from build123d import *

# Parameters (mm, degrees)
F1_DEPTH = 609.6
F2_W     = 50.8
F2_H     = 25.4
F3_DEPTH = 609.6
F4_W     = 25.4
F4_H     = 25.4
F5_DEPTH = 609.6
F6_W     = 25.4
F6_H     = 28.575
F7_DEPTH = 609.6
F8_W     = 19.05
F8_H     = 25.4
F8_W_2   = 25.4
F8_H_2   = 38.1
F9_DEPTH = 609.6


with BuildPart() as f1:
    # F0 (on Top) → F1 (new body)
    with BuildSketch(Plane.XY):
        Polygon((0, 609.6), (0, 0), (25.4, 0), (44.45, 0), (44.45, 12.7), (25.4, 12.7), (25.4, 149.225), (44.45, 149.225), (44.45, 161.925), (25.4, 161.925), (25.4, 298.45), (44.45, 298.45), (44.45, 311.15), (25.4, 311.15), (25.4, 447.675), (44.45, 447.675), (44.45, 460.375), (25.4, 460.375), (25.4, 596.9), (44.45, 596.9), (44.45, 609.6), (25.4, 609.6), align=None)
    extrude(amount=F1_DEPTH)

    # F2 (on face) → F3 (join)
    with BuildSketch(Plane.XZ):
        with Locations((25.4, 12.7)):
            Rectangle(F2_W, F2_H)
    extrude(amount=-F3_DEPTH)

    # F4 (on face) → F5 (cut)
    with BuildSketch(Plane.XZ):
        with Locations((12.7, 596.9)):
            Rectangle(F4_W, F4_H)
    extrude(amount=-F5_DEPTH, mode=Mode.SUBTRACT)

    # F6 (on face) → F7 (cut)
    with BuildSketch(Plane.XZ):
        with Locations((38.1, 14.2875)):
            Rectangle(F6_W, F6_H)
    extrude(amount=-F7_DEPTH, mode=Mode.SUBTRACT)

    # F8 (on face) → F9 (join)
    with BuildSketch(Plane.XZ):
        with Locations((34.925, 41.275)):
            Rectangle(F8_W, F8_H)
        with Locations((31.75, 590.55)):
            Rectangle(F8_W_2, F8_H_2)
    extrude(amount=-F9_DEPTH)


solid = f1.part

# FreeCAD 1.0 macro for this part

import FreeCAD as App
import Part
import Sketcher

V = App.Vector
Q = App.Units.Quantity

doc = App.newDocument("Part")
params = doc.addObject("Spreadsheet::Sheet", "Params")
for row, (alias, value) in enumerate([
    ("sketch1_height", "24 in"),
    ("sketch1_height2", "0.5 in"),
    ("sketch1_width", "1.75 in"),
    ("pad1_length", "24 in"),
    ("sketch2_width", "2 in"),
    ("sketch2_height", "1 in"),
    ("pad2_length", "24 in"),
    ("sketch3_width", "1 in"),
    ("pocket1_length", "24 in"),
    ("sketch4_width", "1 in"),
    ("sketch4_height", "1.125 in"),
    ("pocket2_length", "24 in"),
    ("sketch5_width", "1 in"),
    ("sketch5_height", "1.5 in"),
    ("sketch5_width2", "0.75 in"),
    ("pad3_length", "24 in"),
], start=1):
    params.set(f"A{row}", alias)
    params.set(f"B{row}", "=" + value)
    params.setAlias(f"B{row}", alias)

body = doc.addObject("PartDesign::Body", "Body")

sketch1 = body.newObject("Sketcher::SketchObject", "Sketch")
sketch1.AttachmentSupport = (doc.getObject("XY_Plane"), [""])
sketch1.MapMode = "FlatFace"
sketch1.addGeometry([
    Part.LineSegment(V(0, 609.6, 0), V(0, 0, 0)),
    Part.LineSegment(V(0, 0, 0), V(44.45, 0, 0)),
    Part.LineSegment(V(44.45, 0, 0), V(44.45, 12.7, 0)),
    Part.LineSegment(V(44.45, 12.7, 0), V(25.4, 12.7, 0)),
    Part.LineSegment(V(25.4, 12.7, 0), V(25.4, 149.225, 0)),
    Part.LineSegment(V(25.4, 149.225, 0), V(44.45, 149.225, 0)),
    Part.LineSegment(V(44.45, 149.225, 0), V(44.45, 161.925, 0)),
    Part.LineSegment(V(44.45, 161.925, 0), V(25.4, 161.925, 0)),
    Part.LineSegment(V(25.4, 161.925, 0), V(25.4, 298.45, 0)),
    Part.LineSegment(V(25.4, 298.45, 0), V(44.45, 298.45, 0)),
    Part.LineSegment(V(44.45, 298.45, 0), V(44.45, 311.15, 0)),
    Part.LineSegment(V(44.45, 311.15, 0), V(25.4, 311.15, 0)),
    Part.LineSegment(V(25.4, 311.15, 0), V(25.4, 447.675, 0)),
    Part.LineSegment(V(25.4, 447.675, 0), V(44.45, 447.675, 0)),
    Part.LineSegment(V(44.45, 447.675, 0), V(44.45, 460.375, 0)),
    Part.LineSegment(V(44.45, 460.375, 0), V(25.4, 460.375, 0)),
    Part.LineSegment(V(25.4, 460.375, 0), V(25.4, 596.9, 0)),
    Part.LineSegment(V(25.4, 596.9, 0), V(44.45, 596.9, 0)),
    Part.LineSegment(V(44.45, 596.9, 0), V(44.45, 609.6, 0)),
    Part.LineSegment(V(44.45, 609.6, 0), V(0, 609.6, 0)),
], False)
sketch1.addConstraint([
    Sketcher.Constraint("Coincident", 0, 2, 1, 1),
    Sketcher.Constraint("Coincident", 1, 2, 2, 1),
    Sketcher.Constraint("Coincident", 2, 2, 3, 1),
    Sketcher.Constraint("Coincident", 3, 2, 4, 1),
    Sketcher.Constraint("Coincident", 4, 2, 5, 1),
    Sketcher.Constraint("Coincident", 5, 2, 6, 1),
    Sketcher.Constraint("Coincident", 6, 2, 7, 1),
    Sketcher.Constraint("Coincident", 7, 2, 8, 1),
    Sketcher.Constraint("Coincident", 8, 2, 9, 1),
    Sketcher.Constraint("Coincident", 9, 2, 10, 1),
    Sketcher.Constraint("Coincident", 10, 2, 11, 1),
    Sketcher.Constraint("Coincident", 11, 2, 12, 1),
    Sketcher.Constraint("Coincident", 12, 2, 13, 1),
    Sketcher.Constraint("Coincident", 13, 2, 14, 1),
    Sketcher.Constraint("Coincident", 14, 2, 15, 1),
    Sketcher.Constraint("Coincident", 15, 2, 16, 1),
    Sketcher.Constraint("Coincident", 16, 2, 17, 1),
    Sketcher.Constraint("Coincident", 17, 2, 18, 1),
    Sketcher.Constraint("Coincident", 18, 2, 19, 1),
    Sketcher.Constraint("Coincident", 19, 2, 0, 1),
    Sketcher.Constraint("Vertical", 0),
    Sketcher.Constraint("Horizontal", 1),
    Sketcher.Constraint("Vertical", 2),
    Sketcher.Constraint("Horizontal", 3),
    Sketcher.Constraint("Vertical", 4),
    Sketcher.Constraint("Horizontal", 5),
    Sketcher.Constraint("Vertical", 6),
    Sketcher.Constraint("Horizontal", 7),
    Sketcher.Constraint("Vertical", 8),
    Sketcher.Constraint("Horizontal", 9),
    Sketcher.Constraint("Vertical", 10),
    Sketcher.Constraint("Horizontal", 11),
    Sketcher.Constraint("Vertical", 12),
    Sketcher.Constraint("Horizontal", 13),
    Sketcher.Constraint("Vertical", 14),
    Sketcher.Constraint("Horizontal", 15),
    Sketcher.Constraint("Vertical", 16),
    Sketcher.Constraint("Horizontal", 17),
    Sketcher.Constraint("Vertical", 18),
    Sketcher.Constraint("Horizontal", 19),
    Sketcher.Constraint("Coincident", 0, 2, -1, 1),
    Sketcher.Constraint("Vertical", 2, 2, 5, 2),
    Sketcher.Constraint("Vertical", 4, 2, 7, 2),
    Sketcher.Constraint("Vertical", 6, 2, 9, 2),
    Sketcher.Constraint("Vertical", 8, 2, 11, 2),
    Sketcher.Constraint("Vertical", 10, 2, 13, 2),
    Sketcher.Constraint("Vertical", 12, 2, 15, 2),
    Sketcher.Constraint("Vertical", 14, 2, 17, 2),
    Sketcher.Constraint("Equal", 2, 6),
    Sketcher.Constraint("Equal", 4, 8),
    Sketcher.Constraint("Equal", 6, 10),
    Sketcher.Constraint("Equal", 8, 12),
    Sketcher.Constraint("Equal", 10, 14),
    Sketcher.Constraint("Equal", 12, 16),
    Sketcher.Constraint("Equal", 14, 18),
    Sketcher.Constraint("DistanceY", 0, 2, 0, 1, Q("24 in")),
    Sketcher.Constraint("DistanceY", 2, 1, 2, 2, Q("0.5 in")),
    Sketcher.Constraint("DistanceX", -1, 1, 3, 2, Q("1 in")),
    Sketcher.Constraint("DistanceX", 1, 1, 1, 2, Q("1.75 in")),
])
sketch1.setExpression("Constraints[55]", "Params.sketch1_height")
sketch1.setExpression("Constraints[56]", "Params.sketch1_height2")
sketch1.setExpression("Constraints[58]", "Params.sketch1_width")
pad1 = body.newObject("PartDesign::Pad", "Pad")
pad1.Profile = sketch1
pad1.setExpression("Length", "Params.pad1_length")

sketch2 = body.newObject("Sketcher::SketchObject", "Sketch001")
sketch2.AttachmentSupport = (doc.getObject("XZ_Plane"), [""])
sketch2.MapMode = "FlatFace"
sketch2.addGeometry([
    Part.LineSegment(V(0, 25.4, 0), V(0, 0, 0)),
    Part.LineSegment(V(0, 0, 0), V(50.8, 0, 0)),
    Part.LineSegment(V(50.8, 0, 0), V(50.8, 25.4, 0)),
    Part.LineSegment(V(50.8, 25.4, 0), V(0, 25.4, 0)),
], False)
sketch2.addConstraint([
    Sketcher.Constraint("Coincident", 0, 2, 1, 1),
    Sketcher.Constraint("Coincident", 1, 2, 2, 1),
    Sketcher.Constraint("Coincident", 2, 2, 3, 1),
    Sketcher.Constraint("Coincident", 3, 2, 0, 1),
    Sketcher.Constraint("Vertical", 0),
    Sketcher.Constraint("Horizontal", 1),
    Sketcher.Constraint("Vertical", 2),
    Sketcher.Constraint("Horizontal", 3),
    Sketcher.Constraint("Coincident", 0, 2, -1, 1),
    Sketcher.Constraint("DistanceX", 1, 1, 1, 2, Q("2 in")),
    Sketcher.Constraint("DistanceY", 0, 2, 0, 1, Q("1 in")),
])
sketch2.setExpression("Constraints[9]", "Params.sketch2_width")
sketch2.setExpression("Constraints[10]", "Params.sketch2_height")
pad2 = body.newObject("PartDesign::Pad", "Pad001")
pad2.Profile = sketch2
pad2.setExpression("Length", "Params.pad2_length")
pad2.Reversed = True

sketch3 = body.newObject("Sketcher::SketchObject", "Sketch002")
sketch3.AttachmentSupport = (doc.getObject("XZ_Plane"), [""])
sketch3.MapMode = "FlatFace"
sketch3.addGeometry([
    Part.LineSegment(V(0, 609.6, 0), V(0, 584.2, 0)),
    Part.LineSegment(V(0, 584.2, 0), V(25.4, 584.2, 0)),
    Part.LineSegment(V(25.4, 584.2, 0), V(25.4, 609.6, 0)),
    Part.LineSegment(V(25.4, 609.6, 0), V(0, 609.6, 0)),
], False)
sketch3.addConstraint([
    Sketcher.Constraint("Coincident", 0, 2, 1, 1),
    Sketcher.Constraint("Coincident", 1, 2, 2, 1),
    Sketcher.Constraint("Coincident", 2, 2, 3, 1),
    Sketcher.Constraint("Coincident", 3, 2, 0, 1),
    Sketcher.Constraint("Vertical", 0),
    Sketcher.Constraint("Horizontal", 1),
    Sketcher.Constraint("Vertical", 2),
    Sketcher.Constraint("Horizontal", 3),
    Sketcher.Constraint("PointOnObject", 0, 2, -2),
    Sketcher.Constraint("Equal", 3, 0),
    Sketcher.Constraint("DistanceX", 1, 1, 1, 2, Q("1 in")),
    Sketcher.Constraint("DistanceY", -1, 1, 0, 2, Q("23 in")),
])
sketch3.setExpression("Constraints[10]", "Params.sketch3_width")
pocket1 = body.newObject("PartDesign::Pocket", "Pocket")
pocket1.Profile = sketch3
pocket1.setExpression("Length", "Params.pocket1_length")

sketch4 = body.newObject("Sketcher::SketchObject", "Sketch003")
sketch4.AttachmentSupport = (doc.getObject("XZ_Plane"), [""])
sketch4.MapMode = "FlatFace"
sketch4.addGeometry([
    Part.LineSegment(V(25.4, 28.575, 0), V(25.4, 0, 0)),
    Part.LineSegment(V(25.4, 0, 0), V(50.8, 0, 0)),
    Part.LineSegment(V(50.8, 0, 0), V(50.8, 28.575, 0)),
    Part.LineSegment(V(50.8, 28.575, 0), V(25.4, 28.575, 0)),
], False)
sketch4.addConstraint([
    Sketcher.Constraint("Coincident", 0, 2, 1, 1),
    Sketcher.Constraint("Coincident", 1, 2, 2, 1),
    Sketcher.Constraint("Coincident", 2, 2, 3, 1),
    Sketcher.Constraint("Coincident", 3, 2, 0, 1),
    Sketcher.Constraint("Vertical", 0),
    Sketcher.Constraint("Horizontal", 1),
    Sketcher.Constraint("Vertical", 2),
    Sketcher.Constraint("Horizontal", 3),
    Sketcher.Constraint("PointOnObject", 0, 2, -1),
    Sketcher.Constraint("DistanceX", 1, 1, 1, 2, Q("1 in")),
    Sketcher.Constraint("DistanceX", -1, 1, 0, 2, Q("1 in")),
    Sketcher.Constraint("DistanceY", 0, 2, 0, 1, Q("1.125 in")),
])
sketch4.setExpression("Constraints[9]", "Params.sketch4_width")
sketch4.setExpression("Constraints[11]", "Params.sketch4_height")
pocket2 = body.newObject("PartDesign::Pocket", "Pocket001")
pocket2.Profile = sketch4
pocket2.setExpression("Length", "Params.pocket2_length")

sketch5 = body.newObject("Sketcher::SketchObject", "Sketch004")
sketch5.AttachmentSupport = (doc.getObject("XZ_Plane"), [""])
sketch5.MapMode = "FlatFace"
sketch5.addGeometry([
    Part.LineSegment(V(25.4, 53.975, 0), V(25.4, 28.575, 0)),
    Part.LineSegment(V(25.4, 28.575, 0), V(44.45, 28.575, 0)),
    Part.LineSegment(V(44.45, 28.575, 0), V(44.45, 53.975, 0)),
    Part.LineSegment(V(44.45, 53.975, 0), V(25.4, 53.975, 0)),
    Part.LineSegment(V(19.05, 609.6, 0), V(19.05, 571.5, 0)),
    Part.LineSegment(V(19.05, 571.5, 0), V(44.45, 571.5, 0)),
    Part.LineSegment(V(44.45, 571.5, 0), V(44.45, 609.6, 0)),
    Part.LineSegment(V(44.45, 609.6, 0), V(19.05, 609.6, 0)),
], False)
sketch5.addConstraint([
    Sketcher.Constraint("Coincident", 0, 2, 1, 1),
    Sketcher.Constraint("Coincident", 1, 2, 2, 1),
    Sketcher.Constraint("Coincident", 2, 2, 3, 1),
    Sketcher.Constraint("Coincident", 3, 2, 0, 1),
    Sketcher.Constraint("Coincident", 4, 2, 5, 1),
    Sketcher.Constraint("Coincident", 5, 2, 6, 1),
    Sketcher.Constraint("Coincident", 6, 2, 7, 1),
    Sketcher.Constraint("Coincident", 7, 2, 4, 1),
    Sketcher.Constraint("Vertical", 0),
    Sketcher.Constraint("Horizontal", 1),
    Sketcher.Constraint("Vertical", 2),
    Sketcher.Constraint("Horizontal", 3),
    Sketcher.Constraint("Vertical", 4),
    Sketcher.Constraint("Horizontal", 5),
    Sketcher.Constraint("Vertical", 6),
    Sketcher.Constraint("Horizontal", 7),
    Sketcher.Constraint("Vertical", 2, 2, 5, 2),
    Sketcher.Constraint("Equal", 7, 0),
    Sketcher.Constraint("DistanceX", 5, 1, 5, 2, Q("1 in")),
    Sketcher.Constraint("DistanceY", 4, 2, 4, 1, Q("1.5 in")),
    Sketcher.Constraint("DistanceX", -1, 1, 0, 2, Q("1 in")),
    Sketcher.Constraint("DistanceY", -1, 1, 6, 2, Q("24 in")),
    Sketcher.Constraint("DistanceX", 1, 1, 1, 2, Q("0.75 in")),
    Sketcher.Constraint("DistanceY", -1, 1, 0, 2, Q("1.125 in")),
])
sketch5.setExpression("Constraints[18]", "Params.sketch5_width")
sketch5.setExpression("Constraints[19]", "Params.sketch5_height")
sketch5.setExpression("Constraints[22]", "Params.sketch5_width2")
pad3 = body.newObject("PartDesign::Pad", "Pad002")
pad3.Profile = sketch5
pad3.setExpression("Length", "Params.pad3_length")
pad3.Reversed = True

doc.recompute()
